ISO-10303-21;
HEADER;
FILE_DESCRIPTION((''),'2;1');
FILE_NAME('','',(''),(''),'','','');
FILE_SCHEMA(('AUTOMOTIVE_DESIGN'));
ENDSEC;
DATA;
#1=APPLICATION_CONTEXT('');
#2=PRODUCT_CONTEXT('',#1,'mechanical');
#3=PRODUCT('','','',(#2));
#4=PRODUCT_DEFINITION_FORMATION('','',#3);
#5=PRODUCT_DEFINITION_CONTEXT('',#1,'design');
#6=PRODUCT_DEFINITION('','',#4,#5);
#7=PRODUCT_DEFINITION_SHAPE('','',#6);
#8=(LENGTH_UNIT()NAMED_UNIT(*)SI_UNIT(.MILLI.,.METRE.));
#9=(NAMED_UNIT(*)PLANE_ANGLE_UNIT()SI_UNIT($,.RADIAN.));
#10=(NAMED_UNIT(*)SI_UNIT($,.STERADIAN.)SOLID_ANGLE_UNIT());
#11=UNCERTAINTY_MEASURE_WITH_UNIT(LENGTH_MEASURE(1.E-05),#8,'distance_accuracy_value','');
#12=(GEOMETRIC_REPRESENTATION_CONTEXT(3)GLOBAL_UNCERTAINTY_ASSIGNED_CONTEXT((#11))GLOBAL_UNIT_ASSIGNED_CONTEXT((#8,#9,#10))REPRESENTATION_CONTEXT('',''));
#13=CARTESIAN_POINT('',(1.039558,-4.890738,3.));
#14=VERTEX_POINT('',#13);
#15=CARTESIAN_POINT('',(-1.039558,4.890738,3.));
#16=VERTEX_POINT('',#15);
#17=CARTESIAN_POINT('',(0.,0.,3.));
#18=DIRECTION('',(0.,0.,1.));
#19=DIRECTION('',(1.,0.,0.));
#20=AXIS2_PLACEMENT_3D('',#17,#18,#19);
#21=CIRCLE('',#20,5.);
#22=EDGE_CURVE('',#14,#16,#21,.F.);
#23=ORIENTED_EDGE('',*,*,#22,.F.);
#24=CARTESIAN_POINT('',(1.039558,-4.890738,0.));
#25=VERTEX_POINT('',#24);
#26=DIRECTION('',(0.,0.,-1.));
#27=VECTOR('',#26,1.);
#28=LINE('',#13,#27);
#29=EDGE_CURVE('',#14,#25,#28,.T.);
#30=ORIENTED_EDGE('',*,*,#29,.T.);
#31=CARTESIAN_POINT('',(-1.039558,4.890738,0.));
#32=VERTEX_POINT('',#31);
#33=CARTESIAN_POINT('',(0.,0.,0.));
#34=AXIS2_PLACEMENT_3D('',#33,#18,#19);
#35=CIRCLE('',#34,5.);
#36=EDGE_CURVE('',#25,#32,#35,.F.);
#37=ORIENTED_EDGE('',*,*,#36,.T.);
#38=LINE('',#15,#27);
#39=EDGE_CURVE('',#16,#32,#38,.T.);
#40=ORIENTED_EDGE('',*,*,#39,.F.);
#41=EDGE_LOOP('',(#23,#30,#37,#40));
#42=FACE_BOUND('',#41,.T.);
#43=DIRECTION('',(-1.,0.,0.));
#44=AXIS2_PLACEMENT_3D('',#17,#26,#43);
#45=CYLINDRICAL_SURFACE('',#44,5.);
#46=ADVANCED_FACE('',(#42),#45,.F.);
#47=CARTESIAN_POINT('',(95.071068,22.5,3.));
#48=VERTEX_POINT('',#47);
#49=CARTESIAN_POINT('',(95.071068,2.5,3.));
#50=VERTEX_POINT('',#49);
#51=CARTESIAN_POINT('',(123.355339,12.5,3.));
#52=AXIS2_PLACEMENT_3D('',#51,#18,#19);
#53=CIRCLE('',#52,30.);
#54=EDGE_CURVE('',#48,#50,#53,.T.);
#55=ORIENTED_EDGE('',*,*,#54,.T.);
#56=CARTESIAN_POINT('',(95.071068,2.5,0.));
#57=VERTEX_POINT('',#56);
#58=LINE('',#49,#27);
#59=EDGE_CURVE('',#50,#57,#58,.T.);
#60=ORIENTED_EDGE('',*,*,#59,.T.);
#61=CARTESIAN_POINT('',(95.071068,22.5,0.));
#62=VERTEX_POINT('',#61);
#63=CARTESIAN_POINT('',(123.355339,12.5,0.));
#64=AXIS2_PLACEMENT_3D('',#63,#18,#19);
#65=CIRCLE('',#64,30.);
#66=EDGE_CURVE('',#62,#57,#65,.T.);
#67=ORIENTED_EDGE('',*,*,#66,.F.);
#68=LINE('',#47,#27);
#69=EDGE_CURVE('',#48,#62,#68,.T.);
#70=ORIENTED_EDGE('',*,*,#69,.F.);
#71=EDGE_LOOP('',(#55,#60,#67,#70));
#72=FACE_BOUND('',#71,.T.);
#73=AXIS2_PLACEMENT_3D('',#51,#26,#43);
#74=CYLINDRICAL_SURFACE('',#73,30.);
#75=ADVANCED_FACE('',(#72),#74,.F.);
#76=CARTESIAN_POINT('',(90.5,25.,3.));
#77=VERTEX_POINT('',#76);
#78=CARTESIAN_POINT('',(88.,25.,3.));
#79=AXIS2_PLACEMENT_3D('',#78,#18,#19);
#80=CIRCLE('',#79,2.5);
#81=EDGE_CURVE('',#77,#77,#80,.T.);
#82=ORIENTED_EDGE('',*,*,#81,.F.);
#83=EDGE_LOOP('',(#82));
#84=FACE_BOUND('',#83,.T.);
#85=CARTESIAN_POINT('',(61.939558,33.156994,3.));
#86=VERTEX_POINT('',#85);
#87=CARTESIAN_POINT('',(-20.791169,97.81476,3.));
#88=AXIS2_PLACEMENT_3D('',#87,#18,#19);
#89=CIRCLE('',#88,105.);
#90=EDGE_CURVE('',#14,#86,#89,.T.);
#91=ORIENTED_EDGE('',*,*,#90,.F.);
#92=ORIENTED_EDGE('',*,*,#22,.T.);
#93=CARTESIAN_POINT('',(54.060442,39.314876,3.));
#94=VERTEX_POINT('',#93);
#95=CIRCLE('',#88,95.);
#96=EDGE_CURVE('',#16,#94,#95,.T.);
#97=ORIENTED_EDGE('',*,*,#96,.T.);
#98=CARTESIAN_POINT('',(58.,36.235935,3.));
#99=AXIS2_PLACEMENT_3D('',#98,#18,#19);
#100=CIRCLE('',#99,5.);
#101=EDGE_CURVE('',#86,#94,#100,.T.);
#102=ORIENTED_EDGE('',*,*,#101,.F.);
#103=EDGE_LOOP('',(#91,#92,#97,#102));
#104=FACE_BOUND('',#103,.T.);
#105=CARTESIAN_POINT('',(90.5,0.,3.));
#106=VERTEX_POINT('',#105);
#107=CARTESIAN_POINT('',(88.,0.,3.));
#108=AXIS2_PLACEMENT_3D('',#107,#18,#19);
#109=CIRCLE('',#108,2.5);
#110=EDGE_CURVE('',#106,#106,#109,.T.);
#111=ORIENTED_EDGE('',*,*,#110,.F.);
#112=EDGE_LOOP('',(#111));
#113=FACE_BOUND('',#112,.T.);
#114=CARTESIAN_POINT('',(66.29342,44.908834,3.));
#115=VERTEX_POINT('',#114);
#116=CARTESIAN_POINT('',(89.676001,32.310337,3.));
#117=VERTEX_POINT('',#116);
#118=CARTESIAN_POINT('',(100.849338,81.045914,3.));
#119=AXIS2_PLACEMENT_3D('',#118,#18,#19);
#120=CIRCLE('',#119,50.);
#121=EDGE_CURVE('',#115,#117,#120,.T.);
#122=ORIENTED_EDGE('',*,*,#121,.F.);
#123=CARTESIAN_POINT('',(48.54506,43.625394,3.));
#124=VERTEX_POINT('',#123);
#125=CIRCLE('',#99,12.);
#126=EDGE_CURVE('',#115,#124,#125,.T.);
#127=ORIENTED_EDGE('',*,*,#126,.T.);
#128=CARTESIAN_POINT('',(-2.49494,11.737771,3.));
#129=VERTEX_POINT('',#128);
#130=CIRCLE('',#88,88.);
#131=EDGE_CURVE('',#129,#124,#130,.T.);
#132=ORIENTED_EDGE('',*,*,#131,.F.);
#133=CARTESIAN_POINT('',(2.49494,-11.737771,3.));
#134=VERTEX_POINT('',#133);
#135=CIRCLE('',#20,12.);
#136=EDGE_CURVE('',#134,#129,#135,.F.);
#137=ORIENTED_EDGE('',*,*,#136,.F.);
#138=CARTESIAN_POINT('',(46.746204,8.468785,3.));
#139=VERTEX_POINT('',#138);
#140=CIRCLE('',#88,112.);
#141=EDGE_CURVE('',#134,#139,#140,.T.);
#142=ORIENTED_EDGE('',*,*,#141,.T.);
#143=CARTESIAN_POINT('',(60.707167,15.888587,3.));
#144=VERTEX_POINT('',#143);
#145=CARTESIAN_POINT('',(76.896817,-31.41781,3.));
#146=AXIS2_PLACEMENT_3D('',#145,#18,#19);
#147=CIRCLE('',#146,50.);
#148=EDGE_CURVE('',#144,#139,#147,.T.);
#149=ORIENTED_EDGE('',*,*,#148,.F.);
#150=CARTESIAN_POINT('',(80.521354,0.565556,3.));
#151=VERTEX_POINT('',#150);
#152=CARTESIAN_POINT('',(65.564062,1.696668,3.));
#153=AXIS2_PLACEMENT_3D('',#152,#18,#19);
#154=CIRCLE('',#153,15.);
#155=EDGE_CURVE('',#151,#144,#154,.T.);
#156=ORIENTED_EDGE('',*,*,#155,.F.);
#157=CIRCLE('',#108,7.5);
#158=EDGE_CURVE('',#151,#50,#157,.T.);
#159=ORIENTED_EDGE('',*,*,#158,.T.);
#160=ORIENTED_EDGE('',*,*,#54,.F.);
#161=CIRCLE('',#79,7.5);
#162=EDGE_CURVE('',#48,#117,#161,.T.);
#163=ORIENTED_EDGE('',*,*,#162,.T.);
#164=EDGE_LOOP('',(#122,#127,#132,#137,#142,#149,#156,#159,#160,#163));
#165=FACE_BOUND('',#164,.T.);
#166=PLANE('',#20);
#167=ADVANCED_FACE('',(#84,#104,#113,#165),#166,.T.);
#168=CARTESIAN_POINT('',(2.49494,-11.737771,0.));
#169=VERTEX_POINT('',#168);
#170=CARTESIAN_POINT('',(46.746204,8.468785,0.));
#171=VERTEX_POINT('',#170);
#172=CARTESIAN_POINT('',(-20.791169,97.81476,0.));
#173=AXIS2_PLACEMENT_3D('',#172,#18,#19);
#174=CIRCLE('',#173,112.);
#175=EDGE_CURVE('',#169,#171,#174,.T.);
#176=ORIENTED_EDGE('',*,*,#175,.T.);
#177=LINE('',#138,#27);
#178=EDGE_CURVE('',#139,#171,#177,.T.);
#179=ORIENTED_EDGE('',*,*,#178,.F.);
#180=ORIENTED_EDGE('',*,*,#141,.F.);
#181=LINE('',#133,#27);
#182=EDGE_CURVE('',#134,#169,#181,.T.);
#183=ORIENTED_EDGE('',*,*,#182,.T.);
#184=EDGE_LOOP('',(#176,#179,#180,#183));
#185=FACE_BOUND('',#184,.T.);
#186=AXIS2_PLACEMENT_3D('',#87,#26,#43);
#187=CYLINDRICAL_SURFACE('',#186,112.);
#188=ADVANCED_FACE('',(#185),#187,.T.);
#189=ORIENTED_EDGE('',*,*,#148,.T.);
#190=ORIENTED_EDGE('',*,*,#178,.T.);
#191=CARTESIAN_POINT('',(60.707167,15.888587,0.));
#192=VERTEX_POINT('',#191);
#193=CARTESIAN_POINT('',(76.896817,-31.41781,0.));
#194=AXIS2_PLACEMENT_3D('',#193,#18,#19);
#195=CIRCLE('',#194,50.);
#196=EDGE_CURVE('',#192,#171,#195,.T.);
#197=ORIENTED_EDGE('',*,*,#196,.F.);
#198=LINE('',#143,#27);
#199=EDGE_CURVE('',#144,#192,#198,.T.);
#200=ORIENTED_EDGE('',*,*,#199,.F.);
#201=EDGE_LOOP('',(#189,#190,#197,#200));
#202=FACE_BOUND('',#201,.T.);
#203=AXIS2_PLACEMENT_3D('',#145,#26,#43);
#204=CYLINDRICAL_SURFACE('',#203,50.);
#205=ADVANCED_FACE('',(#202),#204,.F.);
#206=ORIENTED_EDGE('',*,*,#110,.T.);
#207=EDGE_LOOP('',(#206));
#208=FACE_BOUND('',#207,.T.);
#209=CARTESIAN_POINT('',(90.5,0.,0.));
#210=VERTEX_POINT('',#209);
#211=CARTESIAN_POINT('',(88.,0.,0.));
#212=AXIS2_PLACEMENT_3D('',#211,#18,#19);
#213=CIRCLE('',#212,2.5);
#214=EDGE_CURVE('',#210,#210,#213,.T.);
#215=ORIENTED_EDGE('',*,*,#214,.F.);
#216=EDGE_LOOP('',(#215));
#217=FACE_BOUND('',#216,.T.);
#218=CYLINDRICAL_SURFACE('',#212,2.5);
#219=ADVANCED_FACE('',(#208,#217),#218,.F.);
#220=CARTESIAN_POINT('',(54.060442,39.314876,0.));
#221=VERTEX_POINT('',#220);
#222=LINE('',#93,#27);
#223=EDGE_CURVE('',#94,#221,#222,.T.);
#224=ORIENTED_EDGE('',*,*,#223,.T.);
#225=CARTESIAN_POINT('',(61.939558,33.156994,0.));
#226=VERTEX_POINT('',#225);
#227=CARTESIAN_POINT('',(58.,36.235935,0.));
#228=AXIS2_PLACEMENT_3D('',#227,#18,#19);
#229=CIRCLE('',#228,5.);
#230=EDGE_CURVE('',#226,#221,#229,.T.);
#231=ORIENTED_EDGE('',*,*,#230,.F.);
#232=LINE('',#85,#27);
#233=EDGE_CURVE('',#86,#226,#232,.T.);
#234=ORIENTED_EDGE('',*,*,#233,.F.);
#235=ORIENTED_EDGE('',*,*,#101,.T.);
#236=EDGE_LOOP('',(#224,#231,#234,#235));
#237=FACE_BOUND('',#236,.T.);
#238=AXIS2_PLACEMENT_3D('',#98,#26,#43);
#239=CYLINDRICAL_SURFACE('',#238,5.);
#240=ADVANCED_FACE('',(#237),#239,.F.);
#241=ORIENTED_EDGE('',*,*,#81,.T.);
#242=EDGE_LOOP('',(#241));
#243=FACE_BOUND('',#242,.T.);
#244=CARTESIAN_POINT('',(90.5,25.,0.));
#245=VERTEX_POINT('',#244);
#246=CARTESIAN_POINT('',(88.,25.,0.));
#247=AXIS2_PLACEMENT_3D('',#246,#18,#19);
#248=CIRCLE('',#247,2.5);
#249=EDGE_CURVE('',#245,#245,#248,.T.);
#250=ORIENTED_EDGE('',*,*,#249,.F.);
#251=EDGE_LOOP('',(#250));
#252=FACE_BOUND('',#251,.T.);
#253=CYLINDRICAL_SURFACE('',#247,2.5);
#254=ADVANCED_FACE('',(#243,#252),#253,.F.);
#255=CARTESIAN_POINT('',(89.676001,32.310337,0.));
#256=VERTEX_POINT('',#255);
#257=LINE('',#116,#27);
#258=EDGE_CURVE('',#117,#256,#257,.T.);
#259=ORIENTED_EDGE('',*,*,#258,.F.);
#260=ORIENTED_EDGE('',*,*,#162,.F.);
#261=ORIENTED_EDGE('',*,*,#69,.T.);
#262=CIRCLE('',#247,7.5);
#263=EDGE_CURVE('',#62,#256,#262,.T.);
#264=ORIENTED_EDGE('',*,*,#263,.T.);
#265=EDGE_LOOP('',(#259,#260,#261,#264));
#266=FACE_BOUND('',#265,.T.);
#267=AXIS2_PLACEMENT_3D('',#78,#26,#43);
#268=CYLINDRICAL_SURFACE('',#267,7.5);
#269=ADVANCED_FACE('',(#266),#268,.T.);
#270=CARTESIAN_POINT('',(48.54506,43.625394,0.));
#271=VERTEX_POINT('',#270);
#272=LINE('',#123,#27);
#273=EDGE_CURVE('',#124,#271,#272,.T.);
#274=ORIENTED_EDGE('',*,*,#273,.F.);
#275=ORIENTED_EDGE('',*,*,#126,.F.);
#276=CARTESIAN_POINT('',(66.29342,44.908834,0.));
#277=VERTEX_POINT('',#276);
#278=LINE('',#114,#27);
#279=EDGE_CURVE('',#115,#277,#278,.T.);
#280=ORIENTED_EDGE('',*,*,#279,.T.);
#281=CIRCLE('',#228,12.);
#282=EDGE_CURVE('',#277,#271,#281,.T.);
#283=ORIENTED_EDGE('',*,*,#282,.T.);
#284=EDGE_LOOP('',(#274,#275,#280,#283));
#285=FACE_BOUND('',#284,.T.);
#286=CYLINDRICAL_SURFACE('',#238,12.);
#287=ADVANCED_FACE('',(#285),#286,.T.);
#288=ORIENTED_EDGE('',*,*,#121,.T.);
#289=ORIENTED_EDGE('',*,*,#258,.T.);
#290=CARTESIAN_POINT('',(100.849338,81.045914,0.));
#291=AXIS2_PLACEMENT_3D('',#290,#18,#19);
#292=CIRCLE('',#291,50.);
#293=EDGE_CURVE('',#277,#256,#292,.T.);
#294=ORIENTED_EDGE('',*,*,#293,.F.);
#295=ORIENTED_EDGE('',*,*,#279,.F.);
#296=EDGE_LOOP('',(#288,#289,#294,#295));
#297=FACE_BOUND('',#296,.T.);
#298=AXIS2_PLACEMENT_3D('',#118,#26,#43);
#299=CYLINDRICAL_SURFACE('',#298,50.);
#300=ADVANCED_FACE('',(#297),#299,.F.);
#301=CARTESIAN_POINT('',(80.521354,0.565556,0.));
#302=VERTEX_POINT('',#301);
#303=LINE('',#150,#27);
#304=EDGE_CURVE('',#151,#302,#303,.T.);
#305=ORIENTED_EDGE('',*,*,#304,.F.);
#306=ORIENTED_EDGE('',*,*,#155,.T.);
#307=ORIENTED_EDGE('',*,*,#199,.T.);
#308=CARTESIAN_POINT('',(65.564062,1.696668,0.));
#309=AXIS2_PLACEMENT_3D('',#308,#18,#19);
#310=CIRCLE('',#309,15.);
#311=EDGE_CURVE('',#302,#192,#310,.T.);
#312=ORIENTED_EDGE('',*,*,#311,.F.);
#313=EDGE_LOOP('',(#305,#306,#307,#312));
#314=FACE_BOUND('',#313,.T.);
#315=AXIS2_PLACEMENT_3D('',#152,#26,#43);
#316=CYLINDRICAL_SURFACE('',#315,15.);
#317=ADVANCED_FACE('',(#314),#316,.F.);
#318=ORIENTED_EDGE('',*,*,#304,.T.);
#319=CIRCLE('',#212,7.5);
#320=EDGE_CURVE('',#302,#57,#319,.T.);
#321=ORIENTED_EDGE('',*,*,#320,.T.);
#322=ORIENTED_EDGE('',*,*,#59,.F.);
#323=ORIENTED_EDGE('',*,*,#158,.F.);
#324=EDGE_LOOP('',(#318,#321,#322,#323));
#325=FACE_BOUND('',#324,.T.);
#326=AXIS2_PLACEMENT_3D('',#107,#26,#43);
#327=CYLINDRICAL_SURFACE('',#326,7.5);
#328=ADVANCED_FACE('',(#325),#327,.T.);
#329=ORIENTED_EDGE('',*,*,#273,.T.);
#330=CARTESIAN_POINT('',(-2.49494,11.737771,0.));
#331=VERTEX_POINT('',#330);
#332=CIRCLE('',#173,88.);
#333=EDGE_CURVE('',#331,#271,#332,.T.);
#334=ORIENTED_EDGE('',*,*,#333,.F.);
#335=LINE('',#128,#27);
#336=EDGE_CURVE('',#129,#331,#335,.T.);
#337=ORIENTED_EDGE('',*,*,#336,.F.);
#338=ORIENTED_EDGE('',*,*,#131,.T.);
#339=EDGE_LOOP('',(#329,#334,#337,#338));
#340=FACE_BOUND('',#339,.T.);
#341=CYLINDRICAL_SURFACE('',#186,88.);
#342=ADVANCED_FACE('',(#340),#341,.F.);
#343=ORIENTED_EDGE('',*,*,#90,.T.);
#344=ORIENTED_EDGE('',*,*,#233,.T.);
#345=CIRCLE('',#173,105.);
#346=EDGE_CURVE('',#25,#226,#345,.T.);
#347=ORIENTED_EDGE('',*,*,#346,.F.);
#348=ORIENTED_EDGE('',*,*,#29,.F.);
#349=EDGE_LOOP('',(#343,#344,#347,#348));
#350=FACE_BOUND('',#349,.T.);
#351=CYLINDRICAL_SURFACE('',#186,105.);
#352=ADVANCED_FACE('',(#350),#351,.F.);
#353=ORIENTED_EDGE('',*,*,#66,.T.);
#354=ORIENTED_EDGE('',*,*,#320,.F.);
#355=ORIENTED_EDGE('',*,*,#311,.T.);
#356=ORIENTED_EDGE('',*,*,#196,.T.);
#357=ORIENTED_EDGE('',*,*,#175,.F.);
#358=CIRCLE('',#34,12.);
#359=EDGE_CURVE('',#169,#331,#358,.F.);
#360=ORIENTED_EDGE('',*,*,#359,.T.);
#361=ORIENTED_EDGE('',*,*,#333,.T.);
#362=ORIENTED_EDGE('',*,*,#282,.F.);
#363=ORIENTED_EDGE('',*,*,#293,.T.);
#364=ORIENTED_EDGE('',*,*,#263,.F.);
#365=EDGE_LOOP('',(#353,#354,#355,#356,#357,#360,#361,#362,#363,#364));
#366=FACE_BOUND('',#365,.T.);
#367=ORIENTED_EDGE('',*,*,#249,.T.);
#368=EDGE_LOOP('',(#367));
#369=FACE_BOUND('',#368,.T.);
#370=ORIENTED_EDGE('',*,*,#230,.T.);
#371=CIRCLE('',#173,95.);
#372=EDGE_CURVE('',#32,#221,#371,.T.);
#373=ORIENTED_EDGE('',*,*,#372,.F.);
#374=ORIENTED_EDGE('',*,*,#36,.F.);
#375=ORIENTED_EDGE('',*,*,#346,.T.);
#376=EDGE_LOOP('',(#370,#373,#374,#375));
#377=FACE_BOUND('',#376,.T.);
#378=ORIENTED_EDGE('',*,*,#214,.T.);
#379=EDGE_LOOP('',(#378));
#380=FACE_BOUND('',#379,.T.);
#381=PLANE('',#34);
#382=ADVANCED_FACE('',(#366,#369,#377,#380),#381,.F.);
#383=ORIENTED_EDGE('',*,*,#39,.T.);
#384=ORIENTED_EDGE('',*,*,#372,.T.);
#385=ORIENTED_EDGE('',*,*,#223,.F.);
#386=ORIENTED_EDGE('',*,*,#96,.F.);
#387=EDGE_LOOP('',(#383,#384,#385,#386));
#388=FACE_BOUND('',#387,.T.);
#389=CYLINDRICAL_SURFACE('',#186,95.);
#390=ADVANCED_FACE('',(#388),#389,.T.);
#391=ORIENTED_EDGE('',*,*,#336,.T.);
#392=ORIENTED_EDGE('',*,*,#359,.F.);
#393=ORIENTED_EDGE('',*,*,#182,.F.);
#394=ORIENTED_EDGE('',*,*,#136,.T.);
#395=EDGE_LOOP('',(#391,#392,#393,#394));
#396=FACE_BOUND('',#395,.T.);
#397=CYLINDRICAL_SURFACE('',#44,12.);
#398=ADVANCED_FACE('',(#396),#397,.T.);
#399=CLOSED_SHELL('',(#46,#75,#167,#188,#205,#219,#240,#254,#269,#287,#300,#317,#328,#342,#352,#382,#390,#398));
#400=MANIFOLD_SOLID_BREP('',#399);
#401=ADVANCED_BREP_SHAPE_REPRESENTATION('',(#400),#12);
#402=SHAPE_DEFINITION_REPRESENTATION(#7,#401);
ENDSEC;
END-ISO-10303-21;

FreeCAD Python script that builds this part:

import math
import FreeCAD as App
import Part
import Sketcher
Q = App.Units.Quantity

doc = App.newDocument("Part")
body = doc.addObject("PartDesign::Body", "Body")

sketch1 = body.newObject("Sketcher::SketchObject", "Sketch")
sketch1.AttachmentSupport = (doc.getObject("XY_Plane"), [""])
sketch1.MapMode = "FlatFace"
sketch1.addGeometry([
    Part.ArcOfCircle(Part.Circle(App.Vector(-20.791169, 97.81476, 0), App.Vector(0, 0, 1), 112), math.radians(-78), math.radians(-38.009218)),
    Part.ArcOfCircle(Part.Circle(App.Vector(58, 36.235935, 0), App.Vector(0, 0, 1), 12), math.radians(-38.009218), math.radians(141.990782)),
    Part.ArcOfCircle(Part.Circle(App.Vector(-20.791169, 97.81476, 0), App.Vector(0, 0, 1), 88), math.radians(-78), math.radians(-38.009218)),
    Part.ArcOfCircle(Part.Circle(App.Vector(0, 0, 0), App.Vector(0, 0, 1), 12), math.radians(102), math.radians(282)),
    Part.ArcOfCircle(Part.Circle(App.Vector(-20.791169, 97.81476, 0), App.Vector(0, 0, 1), 105), math.radians(-78), math.radians(-38.009218)),
    Part.ArcOfCircle(Part.Circle(App.Vector(0, 0, 0), App.Vector(0, 0, 1), 5), math.radians(102), math.radians(282)),
    Part.ArcOfCircle(Part.Circle(App.Vector(-20.791169, 97.81476, 0), App.Vector(0, 0, 1), 95), math.radians(-78), math.radians(-38.009218)),
    Part.ArcOfCircle(Part.Circle(App.Vector(58, 36.235935, 0), App.Vector(0, 0, 1), 5), math.radians(-38.009218), math.radians(141.990782)),
], False)
sketch1.addConstraint([
    Sketcher.Constraint("Tangent", 0, 2, 1, 1),
    Sketcher.Constraint("Tangent", 1, 2, 2, 2),
    Sketcher.Constraint("Tangent", 2, 1, 3, 1),
    Sketcher.Constraint("Tangent", 3, 2, 0, 1),
    Sketcher.Constraint("Tangent", 4, 1, 5, 2),
    Sketcher.Constraint("Tangent", 5, 1, 6, 1),
    Sketcher.Constraint("Tangent", 6, 2, 7, 2),
    Sketcher.Constraint("Tangent", 7, 1, 4, 2),
    Sketcher.Constraint("Coincident", 3, 3, -1, 1),
    Sketcher.Constraint("Coincident", 5, 3, -1, 1),
    Sketcher.Constraint("Coincident", 2, 3, 0, 3),
    Sketcher.Constraint("Coincident", 4, 3, 0, 3),
    Sketcher.Constraint("Coincident", 6, 3, 0, 3),
    Sketcher.Constraint("Radius", 0, Q("112 mm")),
    Sketcher.Constraint("Radius", 1, Q("12 mm")),
    Sketcher.Constraint("Radius", 4, Q("105 mm")),
    Sketcher.Constraint("DistanceX", -1, 1, 1, 3, Q("58 mm")),
    Sketcher.Constraint("DistanceX", -1, 1, 7, 3, Q("58 mm")),
    Sketcher.Constraint("DistanceX", 5, 1, 3, 2, Q("3.534499 mm")),
])
pad1 = body.newObject("PartDesign::Pad", "Pad")
pad1.Profile = sketch1
pad1.Length = 3

sketch2 = body.newObject("Sketcher::SketchObject", "Sketch001")
sketch2.AttachmentSupport = (doc.getObject("XY_Plane"), [""])
sketch2.MapMode = "FlatFace"
sketch2.addGeometry([
    Part.ArcOfCircle(Part.Circle(App.Vector(100.849338, 81.045914, 0), App.Vector(0, 0, 1), 50), math.radians(-133.718702), math.radians(-102.912734)),
    Part.ArcOfCircle(Part.Circle(App.Vector(58, 36.235935, 0), App.Vector(0, 0, 1), 12), math.radians(-38.009218), math.radians(46.281298)),
    Part.ArcOfCircle(Part.Circle(App.Vector(-20.791169, 97.81476, 0), App.Vector(0, 0, 1), 112), math.radians(-52.914059), math.radians(-38.009218)),
    Part.ArcOfCircle(Part.Circle(App.Vector(76.896817, -31.41781, 0), App.Vector(0, 0, 1), 50), math.radians(78.866316), math.radians(127.085941)),
    Part.ArcOfCircle(Part.Circle(App.Vector(88, 25, 0), App.Vector(0, 0, 1), 7.5), math.radians(-101.133683), math.radians(77.087266)),
], False)
sketch2.addConstraint([
    Sketcher.Constraint("Tangent", 0, 1, 1, 2),
    Sketcher.Constraint("Tangent", 1, 1, 2, 2),
    Sketcher.Constraint("Tangent", 2, 1, 3, 2),
    Sketcher.Constraint("Tangent", 3, 1, 4, 1),
    Sketcher.Constraint("Tangent", 4, 2, 0, 2),
    Sketcher.Constraint("Equal", 0, 3),
    Sketcher.Constraint("Radius", 0, Q("50 mm")),
    Sketcher.Constraint("Radius", 1, Q("12 mm")),
    Sketcher.Constraint("Radius", 2, Q("112 mm")),
    Sketcher.Constraint("Radius", 4, Q("7.5 mm")),
    Sketcher.Constraint("DistanceX", -1, 1, 1, 3, Q("58 mm")),
    Sketcher.Constraint("DistanceX", -1, 1, 4, 3, Q("88 mm")),
    Sketcher.Constraint("DistanceY", -1, 1, 4, 3, Q("25 mm")),
    Sketcher.Constraint("DistanceX", -1, 1, 4, 2, Q("89.676001 mm")),
    Sketcher.Constraint("DistanceX", 2, 3, -1, 1, Q("20.791169 mm")),
])
pad2 = body.newObject("PartDesign::Pad", "Pad001")
pad2.Profile = sketch2
pad2.Length = 3

sketch3 = body.newObject("Sketcher::SketchObject", "Sketch002")
sketch3.AttachmentSupport = (doc.getObject("XY_Plane"), [""])
sketch3.MapMode = "FlatFace"
sketch3.AttachmentOffset = App.Placement(App.Vector(0, 0, 3), App.Rotation())
sketch3.addGeometry(Part.Circle(App.Vector(88, 25, 0), App.Vector(0, 0, 1), 2.5), False)
sketch3.addConstraint([
    Sketcher.Constraint("Diameter", 0, Q("5 mm")),
    Sketcher.Constraint("DistanceX", -1, 1, 0, 3, Q("88 mm")),
    Sketcher.Constraint("DistanceY", -1, 1, 0, 3, Q("25 mm")),
])
pocket1 = body.newObject("PartDesign::Pocket", "Pocket")
pocket1.Profile = sketch3
pocket1.Length = 3

sketch4 = body.newObject("Sketcher::SketchObject", "Sketch003")
sketch4.AttachmentSupport = (doc.getObject("XY_Plane"), [""])
sketch4.MapMode = "FlatFace"
sketch4.addGeometry([
    Part.ArcOfCircle(Part.Circle(App.Vector(76.896817, -31.41781, 0), App.Vector(0, 0, 1), 50), math.radians(78.866316), math.radians(108.892466)),
    Part.ArcOfCircle(Part.Circle(App.Vector(65.564062, 1.696668, 0), App.Vector(0, 0, 1), 15), math.radians(-4.324633), math.radians(108.892465)),
    Part.ArcOfCircle(Part.Circle(App.Vector(88, 0, 0), App.Vector(0, 0, 1), 7.5), math.radians(175.675366), math.radians(180)),
    Part.ArcOfCircle(Part.Circle(App.Vector(88, 0, 0), App.Vector(0, 0, 1), 7.5), math.radians(180), math.radians(379.471221)),
    Part.ArcOfCircle(Part.Circle(App.Vector(123.355339, 12.5, 0), App.Vector(0, 0, 1), 30), math.radians(160.528779), math.radians(199.471221)),
    Part.ArcOfCircle(Part.Circle(App.Vector(88, 25, 0), App.Vector(0, 0, 1), 7.5), math.radians(-101.133684), math.radians(-19.47122)),
], False)
sketch4.addConstraint([
    Sketcher.Constraint("Tangent", 0, 2, 1, 2),
    Sketcher.Constraint("Tangent", 1, 1, 2, 1),
    Sketcher.Constraint("Tangent", 2, 2, 3, 1),
    Sketcher.Constraint("Tangent", 3, 2, 4, 2),
    Sketcher.Constraint("Tangent", 4, 1, 5, 2),
    Sketcher.Constraint("Tangent", 5, 1, 0, 1),
    Sketcher.Constraint("Equal", 2, 3),
    Sketcher.Constraint("Equal", 3, 5),
    Sketcher.Constraint("PointOnObject", 2, 3, -1),
    Sketcher.Constraint("PointOnObject", 2, 2, -1),
    Sketcher.Constraint("Vertical", 3, 3, 5, 3),
    Sketcher.Constraint("Radius", 0, Q("50 mm")),
    Sketcher.Constraint("Radius", 1, Q("15 mm")),
    Sketcher.Constraint("Radius", 4, Q("30 mm")),
    Sketcher.Constraint("Radius", 2, Q("7.5 mm")),
    Sketcher.Constraint("DistanceX", -1, 1, 2, 3, Q("88 mm")),
    Sketcher.Constraint("DistanceY", -1, 1, 5, 3, Q("25 mm")),
    Sketcher.Constraint("DistanceY", 0, 3, -1, 1, Q("31.41781 mm")),
])
pad3 = body.newObject("PartDesign::Pad", "Pad002")
pad3.Profile = sketch4
pad3.Length = 3

sketch5 = body.newObject("Sketcher::SketchObject", "Sketch004")
sketch5.AttachmentSupport = (doc.getObject("XY_Plane"), [""])
sketch5.MapMode = "FlatFace"
sketch5.AttachmentOffset = App.Placement(App.Vector(0, 0, 3), App.Rotation())
sketch5.addGeometry(Part.Circle(App.Vector(88, 0, 0), App.Vector(0, 0, 1), 2.5), False)
sketch5.addConstraint([
    Sketcher.Constraint("PointOnObject", 0, 3, -1),
    Sketcher.Constraint("Diameter", 0, Q("5 mm")),
    Sketcher.Constraint("DistanceX", -1, 1, 0, 3, Q("88 mm")),
])
pocket2 = body.newObject("PartDesign::Pocket", "Pocket001")
pocket2.Profile = sketch5
pocket2.Type = "ThroughAll"

doc.recompute()
